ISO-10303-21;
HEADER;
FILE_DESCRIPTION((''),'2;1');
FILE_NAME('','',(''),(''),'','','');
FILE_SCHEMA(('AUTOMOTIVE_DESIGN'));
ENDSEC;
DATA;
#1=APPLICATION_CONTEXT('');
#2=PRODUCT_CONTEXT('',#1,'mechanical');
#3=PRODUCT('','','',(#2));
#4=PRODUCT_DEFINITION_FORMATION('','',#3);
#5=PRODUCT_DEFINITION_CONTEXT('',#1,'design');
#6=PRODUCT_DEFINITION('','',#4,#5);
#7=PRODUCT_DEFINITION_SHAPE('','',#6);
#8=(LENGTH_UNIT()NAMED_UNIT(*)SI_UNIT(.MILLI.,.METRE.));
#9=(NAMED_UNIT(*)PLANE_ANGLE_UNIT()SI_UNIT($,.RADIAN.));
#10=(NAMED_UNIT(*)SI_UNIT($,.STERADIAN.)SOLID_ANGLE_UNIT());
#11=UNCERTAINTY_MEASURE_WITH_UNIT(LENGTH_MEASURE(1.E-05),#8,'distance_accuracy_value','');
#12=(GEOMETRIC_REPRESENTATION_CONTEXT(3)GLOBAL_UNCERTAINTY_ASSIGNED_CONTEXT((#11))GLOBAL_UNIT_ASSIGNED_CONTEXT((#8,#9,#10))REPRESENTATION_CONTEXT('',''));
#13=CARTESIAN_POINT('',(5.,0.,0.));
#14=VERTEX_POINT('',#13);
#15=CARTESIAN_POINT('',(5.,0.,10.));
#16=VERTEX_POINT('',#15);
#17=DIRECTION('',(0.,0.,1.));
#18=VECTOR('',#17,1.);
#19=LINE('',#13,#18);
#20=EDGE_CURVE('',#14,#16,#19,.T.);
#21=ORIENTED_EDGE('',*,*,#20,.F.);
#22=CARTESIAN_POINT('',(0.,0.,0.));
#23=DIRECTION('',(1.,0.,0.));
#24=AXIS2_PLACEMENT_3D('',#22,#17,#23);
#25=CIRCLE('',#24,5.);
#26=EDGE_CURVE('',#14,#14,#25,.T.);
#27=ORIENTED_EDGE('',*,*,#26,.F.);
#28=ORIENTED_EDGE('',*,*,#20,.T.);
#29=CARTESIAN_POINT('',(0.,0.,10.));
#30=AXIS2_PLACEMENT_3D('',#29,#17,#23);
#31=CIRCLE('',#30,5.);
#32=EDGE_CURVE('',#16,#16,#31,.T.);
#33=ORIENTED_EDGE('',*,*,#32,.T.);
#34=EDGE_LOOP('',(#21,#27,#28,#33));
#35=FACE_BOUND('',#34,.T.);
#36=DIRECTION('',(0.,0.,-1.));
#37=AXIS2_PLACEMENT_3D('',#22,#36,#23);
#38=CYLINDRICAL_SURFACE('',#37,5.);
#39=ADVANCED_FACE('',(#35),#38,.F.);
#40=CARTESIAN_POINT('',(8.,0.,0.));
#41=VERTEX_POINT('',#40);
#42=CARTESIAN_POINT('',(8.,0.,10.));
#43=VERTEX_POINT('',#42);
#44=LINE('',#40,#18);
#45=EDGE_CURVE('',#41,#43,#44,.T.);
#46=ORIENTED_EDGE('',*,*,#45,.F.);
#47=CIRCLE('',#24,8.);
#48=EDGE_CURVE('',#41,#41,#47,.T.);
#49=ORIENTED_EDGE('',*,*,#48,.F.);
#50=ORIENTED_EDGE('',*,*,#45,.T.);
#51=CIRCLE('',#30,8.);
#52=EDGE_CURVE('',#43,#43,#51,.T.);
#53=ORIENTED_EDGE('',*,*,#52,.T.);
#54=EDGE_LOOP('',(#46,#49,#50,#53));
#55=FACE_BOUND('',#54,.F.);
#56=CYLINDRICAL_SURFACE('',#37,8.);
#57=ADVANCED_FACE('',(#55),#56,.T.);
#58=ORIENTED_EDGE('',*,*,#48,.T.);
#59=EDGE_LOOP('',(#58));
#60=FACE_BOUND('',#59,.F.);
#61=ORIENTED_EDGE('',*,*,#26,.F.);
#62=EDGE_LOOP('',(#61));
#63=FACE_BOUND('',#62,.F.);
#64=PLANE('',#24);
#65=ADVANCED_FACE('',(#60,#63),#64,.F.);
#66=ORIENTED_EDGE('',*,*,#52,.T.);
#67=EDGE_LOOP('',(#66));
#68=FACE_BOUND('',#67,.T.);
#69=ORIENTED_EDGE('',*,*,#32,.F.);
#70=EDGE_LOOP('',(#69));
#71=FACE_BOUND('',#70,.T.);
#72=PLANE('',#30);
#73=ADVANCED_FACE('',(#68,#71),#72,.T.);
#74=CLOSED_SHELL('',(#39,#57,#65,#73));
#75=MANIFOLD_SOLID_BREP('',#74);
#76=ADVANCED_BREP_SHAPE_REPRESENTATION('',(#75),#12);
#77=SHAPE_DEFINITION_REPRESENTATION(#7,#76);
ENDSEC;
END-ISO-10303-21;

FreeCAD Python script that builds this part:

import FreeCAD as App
import Part
import Sketcher
from FreeCAD import Vector

doc = App.newDocument("Part")
body = doc.addObject("PartDesign::Body", "Body")

sketch1 = body.newObject("Sketcher::SketchObject", "Sketch")
sketch1.AttachmentSupport = (doc.getObject("XY_Plane"), [""])
sketch1.MapMode = "FlatFace"
sketch1.addGeometry(Part.Circle(Vector(0, 0, 0), Vector(0, 0, 1), 8), False)
sketch1.addGeometry(Part.Circle(Vector(0, 0, 0), Vector(0, 0, 1), 5), False)
sketch1.addConstraint(Sketcher.Constraint("Coincident", 0, 3, -1, 1))
sketch1.addConstraint(Sketcher.Constraint("Coincident", 1, 3, -1, 1))
sketch1.addConstraint(Sketcher.Constraint("Diameter", 0, 16.0))
sketch1.addConstraint(Sketcher.Constraint("Diameter", 1, 10.0))
pad1 = body.newObject("PartDesign::Pad", "Pad")
pad1.Profile = sketch1
pad1.Length = 10

doc.recompute()
